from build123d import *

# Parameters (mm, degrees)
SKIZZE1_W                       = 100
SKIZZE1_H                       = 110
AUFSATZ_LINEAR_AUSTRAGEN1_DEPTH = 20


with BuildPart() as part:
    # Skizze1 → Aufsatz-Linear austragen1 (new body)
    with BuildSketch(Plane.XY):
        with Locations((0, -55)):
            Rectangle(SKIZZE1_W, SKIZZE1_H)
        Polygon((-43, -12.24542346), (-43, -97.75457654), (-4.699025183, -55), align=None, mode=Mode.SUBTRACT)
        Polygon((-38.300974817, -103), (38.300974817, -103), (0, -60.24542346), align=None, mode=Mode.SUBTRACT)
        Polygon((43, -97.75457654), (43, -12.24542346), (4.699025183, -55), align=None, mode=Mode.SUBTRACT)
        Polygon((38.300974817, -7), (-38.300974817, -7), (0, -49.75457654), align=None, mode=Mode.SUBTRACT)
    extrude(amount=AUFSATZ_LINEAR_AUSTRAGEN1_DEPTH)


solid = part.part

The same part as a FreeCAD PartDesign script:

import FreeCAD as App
import Part
import Sketcher
from FreeCAD import Vector
Q = App.Units.Quantity

doc = App.newDocument("Part")
params = doc.addObject("Spreadsheet::Sheet", "Params")
for row, (alias, value) in enumerate([
    ("sketch1_width", "100 mm"),
    ("sketch1_height", "110 mm"),
    ("pad1_length", "20 mm"),
], start=1):
    params.set(f"A{row}", alias)
    params.set(f"B{row}", "=" + value)
    params.setAlias(f"B{row}", alias)

body = doc.addObject("PartDesign::Body", "Body")

# Sketch on XY plane
sketch1 = doc.addObject("Sketcher::SketchObject", "Sketch")
body.addObject(sketch1)
sketch1.AttachmentSupport = (doc.XY_Plane, [""])
sketch1.MapMode = "FlatFace"
sketch1.addGeometry([
    Part.LineSegment(Vector(-50, 0, 0), Vector(-50, -110, 0)),  # 0
    Part.LineSegment(Vector(-50, -110, 0), Vector(50, -110, 0)),  # 1
    Part.LineSegment(Vector(50, -110, 0), Vector(50, 0, 0)),  # 2
    Part.LineSegment(Vector(50, 0, 0), Vector(-50, 0, 0)),  # 3
    Part.LineSegment(Vector(38.300975, -103, 0), Vector(-38.300975, -103, 0)),  # 4
    Part.LineSegment(Vector(-38.300975, -103, 0), Vector(0, -60.245423, 0)),  # 5
    Part.LineSegment(Vector(0, -60.245423, 0), Vector(38.300975, -103, 0)),  # 6
    Part.LineSegment(Vector(-43, -97.754577, 0), Vector(-43, -12.245423, 0)),  # 7
    Part.LineSegment(Vector(-43, -12.245423, 0), Vector(-4.699025, -55, 0)),  # 8
    Part.LineSegment(Vector(-4.699025, -55, 0), Vector(-43, -97.754577, 0)),  # 9
    Part.LineSegment(Vector(43, -12.245423, 0), Vector(43, -97.754577, 0)),  # 10
    Part.LineSegment(Vector(43, -97.754577, 0), Vector(4.699025, -55, 0)),  # 11
    Part.LineSegment(Vector(4.699025, -55, 0), Vector(43, -12.245423, 0)),  # 12
    Part.LineSegment(Vector(-38.300975, -7, 0), Vector(38.300975, -7, 0)),  # 13
    Part.LineSegment(Vector(38.300975, -7, 0), Vector(0, -49.754577, 0)),  # 14
    Part.LineSegment(Vector(0, -49.754577, 0), Vector(-38.300975, -7, 0)),  # 15
], False)
sketch1.addConstraint([
    Sketcher.Constraint("Coincident", 0, 2, 1, 1),
    Sketcher.Constraint("Coincident", 1, 2, 2, 1),
    Sketcher.Constraint("Coincident", 2, 2, 3, 1),
    Sketcher.Constraint("Coincident", 3, 2, 0, 1),
    Sketcher.Constraint("Coincident", 4, 2, 5, 1),
    Sketcher.Constraint("Coincident", 5, 2, 6, 1),
    Sketcher.Constraint("Coincident", 6, 2, 4, 1),
    Sketcher.Constraint("Coincident", 7, 2, 8, 1),
    Sketcher.Constraint("Coincident", 8, 2, 9, 1),
    Sketcher.Constraint("Coincident", 9, 2, 7, 1),
    Sketcher.Constraint("Coincident", 10, 2, 11, 1),
    Sketcher.Constraint("Coincident", 11, 2, 12, 1),
    Sketcher.Constraint("Coincident", 12, 2, 10, 1),
    Sketcher.Constraint("Coincident", 13, 2, 14, 1),
    Sketcher.Constraint("Coincident", 14, 2, 15, 1),
    Sketcher.Constraint("Coincident", 15, 2, 13, 1),
    Sketcher.Constraint("Vertical", 0),
    Sketcher.Constraint("Horizontal", 1),
    Sketcher.Constraint("Vertical", 2),
    Sketcher.Constraint("Horizontal", 3),
    Sketcher.Constraint("Horizontal", 4),
    Sketcher.Constraint("Vertical", 7),
    Sketcher.Constraint("Vertical", 10),
    Sketcher.Constraint("Horizontal", 13),
    Sketcher.Constraint("Symmetric", 2, 2, 3, 2, -1, 1),
    Sketcher.Constraint("Symmetric", 9, 2, 10, 2, -2),
    Sketcher.Constraint("Symmetric", 8, 2, 11, 2, -2),
    Sketcher.Constraint("PointOnObject", 5, 2, -2),
    Sketcher.Constraint("PointOnObject", 14, 2, -2),
    Sketcher.Constraint("Parallel", 6, 8),
    Sketcher.Constraint("Parallel", 5, 9),
    Sketcher.Constraint("Parallel", 8, 11),
    Sketcher.Constraint("Parallel", 9, 12),
    Sketcher.Constraint("Parallel", 12, 14),
    Sketcher.Constraint("Parallel", 11, 15),
    Sketcher.Constraint("Vertical", 6, 2, 13, 2),
    Sketcher.Constraint("Equal", 6, 8),
    Sketcher.Constraint("DistanceX", 1, 1, 1, 2, Q("100 mm")),
    Sketcher.Constraint("DistanceY", 0, 2, 0, 1, Q("110 mm")),
    Sketcher.Constraint("DistanceY", 4, 2, -1, 1, Q("103 mm")),
    Sketcher.Constraint("DistanceX", 7, 2, -1, 1, Q("43 mm")),
    Sketcher.Constraint("DistanceY", 8, 2, -1, 1, Q("55 mm")),
    Sketcher.Constraint("DistanceY", 13, 2, -1, 1, Q("7 mm")),
    Sketcher.Constraint("DistanceX", 4, 2, 4, 1, Q("76.60195 mm")),
    Sketcher.Constraint("Distance", 5, Q("57.401381 mm")),
])
sketch1.setExpression("Constraints[37]", "Params.sketch1_width")
sketch1.setExpression("Constraints[38]", "Params.sketch1_height")
pad1 = doc.addObject("PartDesign::Pad", "Pad")
body.addObject(pad1)
pad1.Profile = sketch1
pad1.setExpression("Length", "Params.pad1_length")

doc.recompute()
